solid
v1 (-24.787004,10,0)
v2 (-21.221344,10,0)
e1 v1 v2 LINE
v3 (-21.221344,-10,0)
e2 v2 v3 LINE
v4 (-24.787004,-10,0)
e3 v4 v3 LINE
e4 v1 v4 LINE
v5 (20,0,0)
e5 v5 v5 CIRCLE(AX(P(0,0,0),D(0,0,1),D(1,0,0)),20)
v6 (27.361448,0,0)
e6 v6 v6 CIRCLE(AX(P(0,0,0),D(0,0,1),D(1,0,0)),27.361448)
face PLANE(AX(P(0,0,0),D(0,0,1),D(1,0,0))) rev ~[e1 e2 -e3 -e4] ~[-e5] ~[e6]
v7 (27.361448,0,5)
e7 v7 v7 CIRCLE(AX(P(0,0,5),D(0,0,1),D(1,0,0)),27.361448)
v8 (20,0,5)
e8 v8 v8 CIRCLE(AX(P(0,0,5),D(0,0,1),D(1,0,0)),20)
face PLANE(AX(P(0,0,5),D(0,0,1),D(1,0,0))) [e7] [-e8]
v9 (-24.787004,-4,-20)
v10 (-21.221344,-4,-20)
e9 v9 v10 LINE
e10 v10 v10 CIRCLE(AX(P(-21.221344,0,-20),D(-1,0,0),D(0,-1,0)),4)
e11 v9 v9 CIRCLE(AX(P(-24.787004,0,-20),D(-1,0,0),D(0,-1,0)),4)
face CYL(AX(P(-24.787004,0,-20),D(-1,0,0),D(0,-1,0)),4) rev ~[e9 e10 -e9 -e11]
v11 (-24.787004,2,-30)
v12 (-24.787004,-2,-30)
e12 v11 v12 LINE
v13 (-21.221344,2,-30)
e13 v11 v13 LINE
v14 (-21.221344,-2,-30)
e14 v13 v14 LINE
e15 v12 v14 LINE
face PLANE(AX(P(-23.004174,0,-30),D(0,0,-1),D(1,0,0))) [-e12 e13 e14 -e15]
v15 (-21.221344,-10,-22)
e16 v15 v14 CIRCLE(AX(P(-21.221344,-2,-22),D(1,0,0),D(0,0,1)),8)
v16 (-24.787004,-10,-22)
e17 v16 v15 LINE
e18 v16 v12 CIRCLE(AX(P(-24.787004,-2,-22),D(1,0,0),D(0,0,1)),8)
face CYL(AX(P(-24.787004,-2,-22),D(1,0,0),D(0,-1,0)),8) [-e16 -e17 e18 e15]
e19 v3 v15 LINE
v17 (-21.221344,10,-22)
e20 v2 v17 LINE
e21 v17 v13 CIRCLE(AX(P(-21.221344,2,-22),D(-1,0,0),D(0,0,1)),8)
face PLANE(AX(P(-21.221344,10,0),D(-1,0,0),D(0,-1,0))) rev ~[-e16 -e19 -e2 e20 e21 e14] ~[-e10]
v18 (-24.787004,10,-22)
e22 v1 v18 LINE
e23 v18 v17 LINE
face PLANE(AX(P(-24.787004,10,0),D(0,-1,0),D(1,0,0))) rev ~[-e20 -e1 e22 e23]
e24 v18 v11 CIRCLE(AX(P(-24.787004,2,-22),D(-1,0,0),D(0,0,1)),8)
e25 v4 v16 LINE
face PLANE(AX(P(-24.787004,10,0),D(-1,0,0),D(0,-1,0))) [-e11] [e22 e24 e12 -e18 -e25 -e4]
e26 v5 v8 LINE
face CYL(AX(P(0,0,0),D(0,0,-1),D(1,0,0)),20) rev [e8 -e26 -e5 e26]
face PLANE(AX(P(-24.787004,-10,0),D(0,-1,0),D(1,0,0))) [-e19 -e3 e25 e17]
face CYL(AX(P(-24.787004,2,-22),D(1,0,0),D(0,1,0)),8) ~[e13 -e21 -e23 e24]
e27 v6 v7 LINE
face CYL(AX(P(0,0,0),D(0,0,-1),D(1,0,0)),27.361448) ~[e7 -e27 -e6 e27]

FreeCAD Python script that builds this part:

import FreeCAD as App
import Part
import Sketcher

V = App.Vector


def edges_at(feature, points):
    """Names of the edges that pass closest to the given points."""
    edges = feature.Shape.Edges
    near = lambda p: min(range(len(edges)), key=lambda i: edges[i].distToShape(Part.Vertex(*p))[0])
    return sorted({f"Edge{near(p) + 1}" for p in points})


def add_polygon(sketch, points):
    """Adds a closed chain of lines whose ends are joined by coincident constraints."""
    first, n = sketch.GeometryCount, len(points)
    for a, b in zip(points, points[1:] + points[:1]):
        sketch.addGeometry(Part.LineSegment(App.Vector(*a, 0), App.Vector(*b, 0)), False)
    for i in range(n):
        sketch.addConstraint(Sketcher.Constraint("Coincident", first + i, 2, first + (i + 1) % n, 1))

doc = App.newDocument("Part")
body = doc.addObject("PartDesign::Body", "Body")

sketch1 = doc.addObject("Sketcher::SketchObject", "Sketch")
body.addObject(sketch1)
sketch1.AttachmentSupport = (doc.XY_Plane, [""])
sketch1.MapMode = "FlatFace"
sketch1.addGeometry(Part.Circle(V(0, 0, 0), V(0, 0, 1), 27), False)
sketch1.addGeometry(Part.Circle(V(0, 0, 0), V(0, 0, 1), 20), False)
sketch1.addConstraint(Sketcher.Constraint("Coincident", 0, 3, -1, 1))
sketch1.addConstraint(Sketcher.Constraint("Coincident", 1, 3, -1, 1))
sketch1.addConstraint(Sketcher.Constraint("Diameter", 1, 40.0))
sketch1.addConstraint(Sketcher.Constraint("Diameter", 0, 54.722896))
pad1 = doc.addObject("PartDesign::Pad", "Pad")
body.addObject(pad1)
pad1.Profile = sketch1
pad1.Length = 5

sketch2 = doc.addObject("Sketcher::SketchObject", "Sketch001")
body.addObject(sketch2)
sketch2.AttachmentSupport = (doc.XY_Plane, [""])
sketch2.MapMode = "FlatFace"
add_polygon(sketch2, [(-24.8, -10), (-24.8, 10), (-21.2, 10), (-21.2, -10)])
sketch2.addConstraint(Sketcher.Constraint("Vertical", 0))
sketch2.addConstraint(Sketcher.Constraint("Horizontal", 1))
sketch2.addConstraint(Sketcher.Constraint("Vertical", 2))
sketch2.addConstraint(Sketcher.Constraint("Horizontal", 3))
sketch2.addConstraint(Sketcher.Constraint("DistanceY", 0, 1, 0, 2, 20.0))
sketch2.addConstraint(Sketcher.Constraint("DistanceY", -1, 1, 0, 2, 10.0))
sketch2.addConstraint(Sketcher.Constraint("DistanceX", 1, 1, 1, 2, 3.56566))
sketch2.addConstraint(Sketcher.Constraint("DistanceX", 0, 2, -1, 1, 24.787004))
pad2 = doc.addObject("PartDesign::Pad", "Pad001")
body.addObject(pad2)
pad2.Profile = sketch2
pad2.Length = 30
pad2.Reversed = True

sketch3 = doc.addObject("Sketcher::SketchObject", "Sketch002")
body.addObject(sketch3)
sketch3.AttachmentSupport = (doc.YZ_Plane, [""])
sketch3.MapMode = "FlatFace"
sketch3.AttachmentOffset = App.Placement(V(0, 0, -24.787004), App.Rotation())
sketch3.addGeometry(Part.Circle(V(0, -20, 0), V(0, 0, 1), 4), False)
sketch3.addConstraint(Sketcher.Constraint("PointOnObject", 0, 3, -2))
sketch3.addConstraint(Sketcher.Constraint("Diameter", 0, 8.0))
sketch3.addConstraint(Sketcher.Constraint("DistanceY", 0, 3, -1, 1, 20.0))
pocket1 = doc.addObject("PartDesign::Pocket", "Pocket")
body.addObject(pocket1)
pocket1.Profile = sketch3
pocket1.Length = 25
pocket1.Reversed = True
doc.recompute()

fillet = doc.addObject("PartDesign::Fillet", "Fillet")
body.addObject(fillet)
fillet.Base = (pocket1, edges_at(pocket1, [(-23.004, -10, -30), (-23.004, 10, -30)]))
fillet.Radius = 8

doc.recompute()
